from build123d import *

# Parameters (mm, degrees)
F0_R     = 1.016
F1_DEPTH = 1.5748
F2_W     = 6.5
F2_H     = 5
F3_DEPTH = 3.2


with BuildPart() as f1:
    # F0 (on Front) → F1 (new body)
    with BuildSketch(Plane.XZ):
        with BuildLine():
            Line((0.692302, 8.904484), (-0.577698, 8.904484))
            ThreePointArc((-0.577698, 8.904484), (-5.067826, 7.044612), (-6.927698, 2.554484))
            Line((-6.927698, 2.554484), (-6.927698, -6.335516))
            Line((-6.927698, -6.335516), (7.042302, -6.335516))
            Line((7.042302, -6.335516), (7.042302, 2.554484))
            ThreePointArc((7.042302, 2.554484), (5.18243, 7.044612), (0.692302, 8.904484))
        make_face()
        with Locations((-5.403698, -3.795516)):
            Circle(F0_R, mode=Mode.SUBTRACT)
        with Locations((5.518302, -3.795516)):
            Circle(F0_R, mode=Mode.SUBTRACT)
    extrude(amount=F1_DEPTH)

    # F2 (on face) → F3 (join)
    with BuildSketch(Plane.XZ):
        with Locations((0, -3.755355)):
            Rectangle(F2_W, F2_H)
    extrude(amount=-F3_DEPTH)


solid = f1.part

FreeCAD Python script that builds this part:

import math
import FreeCAD as App
import Part
import Sketcher
Q = App.Units.Quantity

doc = App.newDocument("Part")
body = doc.addObject("PartDesign::Body", "Body")

sketch1 = body.newObject("Sketcher::SketchObject", "Sketch")
sketch1.AttachmentSupport = (doc.getObject("XZ_Plane"), [""])
sketch1.MapMode = "FlatFace"
sketch1.addGeometry([
    Part.LineSegment(App.Vector(0.7, 8.9, 0), App.Vector(-0.6, 8.9, 0)),
    Part.ArcOfCircle(Part.Circle(App.Vector(-0.6, 2.6, 0), App.Vector(0, 0, 1), 6.4), math.radians(90), math.radians(180)),
    Part.LineSegment(App.Vector(-6.9, 2.6, 0), App.Vector(-6.9, -6.3, 0)),
    Part.LineSegment(App.Vector(-6.9, -6.3, 0), App.Vector(7, -6.3, 0)),
    Part.LineSegment(App.Vector(7, -6.3, 0), App.Vector(7, 2.6, 0)),
    Part.ArcOfCircle(Part.Circle(App.Vector(0.7, 2.6, 0), App.Vector(0, 0, 1), 6.4), math.radians(0), math.radians(90)),
    Part.Circle(App.Vector(-5.4, -3.8, 0), App.Vector(0, 0, 1), 1),
    Part.Circle(App.Vector(5.5, -3.8, 0), App.Vector(0, 0, 1), 1),
], False)
sketch1.addConstraint([
    Sketcher.Constraint("Tangent", 0, 2, 1, 1),
    Sketcher.Constraint("Tangent", 1, 2, 2, 1),
    Sketcher.Constraint("Coincident", 2, 2, 3, 1),
    Sketcher.Constraint("Coincident", 3, 2, 4, 1),
    Sketcher.Constraint("Tangent", 4, 2, 5, 1),
    Sketcher.Constraint("Tangent", 5, 2, 0, 1),
    Sketcher.Constraint("Horizontal", 0),
    Sketcher.Constraint("Vertical", 2),
    Sketcher.Constraint("Horizontal", 3),
    Sketcher.Constraint("Vertical", 4),
    Sketcher.Constraint("Equal", 1, 5),
    Sketcher.Constraint("Equal", 6, 7),
    Sketcher.Constraint("Horizontal", 6, 3, 7, 3),
    Sketcher.Constraint("Diameter", 6, Q("0.08 in")),
    Sketcher.Constraint("Radius", 1, Q("0.25 in")),
    Sketcher.Constraint("DistanceX", 0, 2, 0, 1, Q("0.05 in")),
    Sketcher.Constraint("DistanceY", 2, 2, 2, 1, Q("0.35 in")),
    Sketcher.Constraint("DistanceY", 6, 3, 0, 2, Q("0.5 in")),
    Sketcher.Constraint("DistanceX", 6, 3, 1, 3, Q("0.19 in")),
    Sketcher.Constraint("DistanceX", 5, 3, 7, 3, Q("0.19 in")),
    Sketcher.Constraint("DistanceX", -1, 1, 5, 3, 0.692302),
    Sketcher.Constraint("DistanceY", -1, 1, 1, 3, 2.554484),
])
pad1 = body.newObject("PartDesign::Pad", "Pad")
pad1.Profile = sketch1
pad1.Length = Q("0.062 in")

sketch2 = body.newObject("Sketcher::SketchObject", "Sketch001")
sketch2.AttachmentSupport = (doc.getObject("XZ_Plane"), [""])
sketch2.MapMode = "FlatFace"
sketch2.addGeometry([
    Part.LineSegment(App.Vector(-3, -1, 0), App.Vector(-3, -6, 0)),
    Part.LineSegment(App.Vector(-3, -6, 0), App.Vector(3, -6, 0)),
    Part.LineSegment(App.Vector(3, -6, 0), App.Vector(3, -1, 0)),
    Part.LineSegment(App.Vector(3, -1, 0), App.Vector(-3, -1, 0)),
], False)
sketch2.addConstraint([
    Sketcher.Constraint("Coincident", 0, 2, 1, 1),
    Sketcher.Constraint("Coincident", 1, 2, 2, 1),
    Sketcher.Constraint("Coincident", 2, 2, 3, 1),
    Sketcher.Constraint("Coincident", 3, 2, 0, 1),
    Sketcher.Constraint("Vertical", 0),
    Sketcher.Constraint("Horizontal", 1),
    Sketcher.Constraint("Vertical", 2),
    Sketcher.Constraint("Horizontal", 3),
    Sketcher.Constraint("DistanceX", 1, 1, 1, 2, 6.5),
    Sketcher.Constraint("DistanceY", 0, 2, 0, 1, 5.0),
    Sketcher.Constraint("DistanceX", 0, 2, -1, 1, 3.25),
    Sketcher.Constraint("DistanceY", 0, 2, -1, 1, 6.255355),
])
pad2 = body.newObject("PartDesign::Pad", "Pad001")
pad2.Profile = sketch2
pad2.Length = 3.2
pad2.Reversed = True

doc.recompute()
